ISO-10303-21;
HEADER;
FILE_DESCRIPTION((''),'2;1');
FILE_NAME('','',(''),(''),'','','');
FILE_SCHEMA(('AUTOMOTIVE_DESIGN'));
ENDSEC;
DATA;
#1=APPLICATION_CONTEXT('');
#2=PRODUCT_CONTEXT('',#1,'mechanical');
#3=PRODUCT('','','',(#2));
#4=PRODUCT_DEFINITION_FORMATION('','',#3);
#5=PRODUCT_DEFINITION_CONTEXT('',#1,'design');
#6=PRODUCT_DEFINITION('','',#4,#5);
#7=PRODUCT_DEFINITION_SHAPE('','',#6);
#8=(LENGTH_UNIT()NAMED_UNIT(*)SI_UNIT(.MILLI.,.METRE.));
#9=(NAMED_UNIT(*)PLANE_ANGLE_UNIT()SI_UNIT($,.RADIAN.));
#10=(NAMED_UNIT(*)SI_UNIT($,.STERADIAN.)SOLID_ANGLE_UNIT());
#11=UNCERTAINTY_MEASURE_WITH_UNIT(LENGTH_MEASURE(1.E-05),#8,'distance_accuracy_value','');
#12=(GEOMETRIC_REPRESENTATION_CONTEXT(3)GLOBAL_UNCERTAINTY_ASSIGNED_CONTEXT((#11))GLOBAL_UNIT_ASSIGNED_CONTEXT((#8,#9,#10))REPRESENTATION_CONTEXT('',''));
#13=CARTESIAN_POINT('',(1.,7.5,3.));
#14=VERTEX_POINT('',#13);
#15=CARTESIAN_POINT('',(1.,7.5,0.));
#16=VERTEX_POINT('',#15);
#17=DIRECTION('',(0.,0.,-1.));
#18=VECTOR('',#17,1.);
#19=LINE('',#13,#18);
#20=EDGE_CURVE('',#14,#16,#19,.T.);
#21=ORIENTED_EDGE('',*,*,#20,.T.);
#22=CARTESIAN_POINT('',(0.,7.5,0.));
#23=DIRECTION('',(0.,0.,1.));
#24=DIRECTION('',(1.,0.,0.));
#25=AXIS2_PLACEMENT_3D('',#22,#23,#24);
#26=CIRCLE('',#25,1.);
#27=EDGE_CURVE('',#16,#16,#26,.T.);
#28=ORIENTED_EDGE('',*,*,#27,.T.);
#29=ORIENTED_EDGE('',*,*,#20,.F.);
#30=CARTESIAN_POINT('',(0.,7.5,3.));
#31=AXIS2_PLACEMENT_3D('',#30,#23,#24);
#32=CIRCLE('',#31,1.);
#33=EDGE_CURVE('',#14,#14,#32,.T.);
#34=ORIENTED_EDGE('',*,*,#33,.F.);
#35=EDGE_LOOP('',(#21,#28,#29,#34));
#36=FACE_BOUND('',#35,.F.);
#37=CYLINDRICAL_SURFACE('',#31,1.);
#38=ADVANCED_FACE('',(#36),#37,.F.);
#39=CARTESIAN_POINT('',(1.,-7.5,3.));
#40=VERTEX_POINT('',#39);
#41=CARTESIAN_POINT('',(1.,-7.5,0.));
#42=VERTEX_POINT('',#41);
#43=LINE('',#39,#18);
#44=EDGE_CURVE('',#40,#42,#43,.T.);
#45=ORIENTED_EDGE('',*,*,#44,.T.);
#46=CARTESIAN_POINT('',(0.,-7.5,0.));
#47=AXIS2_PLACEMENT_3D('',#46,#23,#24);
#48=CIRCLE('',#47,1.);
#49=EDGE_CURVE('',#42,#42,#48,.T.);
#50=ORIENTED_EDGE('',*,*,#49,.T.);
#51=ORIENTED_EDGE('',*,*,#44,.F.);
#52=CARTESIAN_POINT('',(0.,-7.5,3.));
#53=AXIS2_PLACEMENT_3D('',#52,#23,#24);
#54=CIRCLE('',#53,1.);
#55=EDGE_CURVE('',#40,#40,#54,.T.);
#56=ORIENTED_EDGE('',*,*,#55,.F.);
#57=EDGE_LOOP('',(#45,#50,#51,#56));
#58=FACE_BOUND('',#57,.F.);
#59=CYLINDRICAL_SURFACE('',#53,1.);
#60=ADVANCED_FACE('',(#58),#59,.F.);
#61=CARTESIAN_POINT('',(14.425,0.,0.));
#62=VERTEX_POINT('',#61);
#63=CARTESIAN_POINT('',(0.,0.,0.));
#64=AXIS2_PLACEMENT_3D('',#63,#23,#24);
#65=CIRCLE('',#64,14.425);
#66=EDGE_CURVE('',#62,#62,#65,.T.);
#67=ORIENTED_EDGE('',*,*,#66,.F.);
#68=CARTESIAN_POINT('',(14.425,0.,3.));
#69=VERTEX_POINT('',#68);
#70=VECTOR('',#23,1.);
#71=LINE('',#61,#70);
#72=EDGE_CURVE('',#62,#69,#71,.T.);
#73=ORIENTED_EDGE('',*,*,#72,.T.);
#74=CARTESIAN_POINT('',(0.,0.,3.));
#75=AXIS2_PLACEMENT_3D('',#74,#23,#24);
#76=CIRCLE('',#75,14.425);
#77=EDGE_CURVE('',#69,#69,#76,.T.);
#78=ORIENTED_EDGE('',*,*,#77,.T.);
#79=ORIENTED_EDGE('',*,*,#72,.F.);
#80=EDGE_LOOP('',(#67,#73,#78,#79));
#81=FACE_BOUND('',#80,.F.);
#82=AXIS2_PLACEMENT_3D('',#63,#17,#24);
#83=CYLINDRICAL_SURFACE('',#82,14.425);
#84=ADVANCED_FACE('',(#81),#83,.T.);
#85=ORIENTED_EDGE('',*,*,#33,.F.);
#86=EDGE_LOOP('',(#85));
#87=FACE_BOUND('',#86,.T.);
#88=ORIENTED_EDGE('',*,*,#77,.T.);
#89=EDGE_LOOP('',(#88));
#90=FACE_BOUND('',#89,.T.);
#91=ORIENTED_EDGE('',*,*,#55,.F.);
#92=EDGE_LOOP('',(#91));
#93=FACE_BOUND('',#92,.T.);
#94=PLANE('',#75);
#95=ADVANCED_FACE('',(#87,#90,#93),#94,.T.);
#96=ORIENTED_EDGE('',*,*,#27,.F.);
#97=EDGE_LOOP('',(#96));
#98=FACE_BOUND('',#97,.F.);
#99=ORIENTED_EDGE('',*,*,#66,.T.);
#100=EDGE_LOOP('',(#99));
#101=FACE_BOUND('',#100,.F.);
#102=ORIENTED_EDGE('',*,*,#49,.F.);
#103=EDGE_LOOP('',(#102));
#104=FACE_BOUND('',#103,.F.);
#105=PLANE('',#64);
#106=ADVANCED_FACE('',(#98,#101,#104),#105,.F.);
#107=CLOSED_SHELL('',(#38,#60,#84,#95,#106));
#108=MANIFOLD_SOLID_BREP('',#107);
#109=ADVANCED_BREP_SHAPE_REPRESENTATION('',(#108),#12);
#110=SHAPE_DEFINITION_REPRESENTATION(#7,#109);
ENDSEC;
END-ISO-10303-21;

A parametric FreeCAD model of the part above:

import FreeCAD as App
import Part
import Sketcher

V = App.Vector
Q = App.Units.Quantity

doc = App.newDocument("Part")
body = doc.addObject("PartDesign::Body", "Body")

# Sketch on XY plane
sketch1 = body.newObject("Sketcher::SketchObject", "Sketch")
sketch1.AttachmentSupport = (doc.getObject("XY_Plane"), [""])
sketch1.MapMode = "FlatFace"
sketch1.addGeometry(Part.Circle(V(0, 0, 0), V(0, 0, 1), 14), False)
sketch1.addConstraint(Sketcher.Constraint("Coincident", 0, 3, -1, 1))
sketch1.addConstraint(Sketcher.Constraint("Diameter", 0, Q("28.85 mm")))
pad1 = body.newObject("PartDesign::Pad", "Pad")
pad1.Profile = sketch1
pad1.Length = 3

# Sketch on XY plane
sketch2 = body.newObject("Sketcher::SketchObject", "Sketch001")
sketch2.AttachmentSupport = (doc.getObject("XY_Plane"), [""])
sketch2.MapMode = "FlatFace"
sketch2.AttachmentOffset = App.Placement(V(0, 0, 3), App.Rotation())
sketch2.addGeometry(Part.Circle(V(0, 7.5, 0), V(0, 0, 1), 1), False)
sketch2.addGeometry(Part.Circle(V(0, -7.5, 0), V(0, 0, 1), 1), False)
sketch2.addConstraint(Sketcher.Constraint("Equal", 0, 1))
sketch2.addConstraint(Sketcher.Constraint("Symmetric", 0, 3, 1, 3, -1, 1))
sketch2.addConstraint(Sketcher.Constraint("PointOnObject", 0, 3, -2))
sketch2.addConstraint(Sketcher.Constraint("Diameter", 0, Q("2 mm")))
sketch2.addConstraint(Sketcher.Constraint("DistanceY", 1, 3, 0, 3, Q("15 mm")))
pocket1 = body.newObject("PartDesign::Pocket", "Pocket")
pocket1.Profile = sketch2
pocket1.Length = 10

doc.recompute()
